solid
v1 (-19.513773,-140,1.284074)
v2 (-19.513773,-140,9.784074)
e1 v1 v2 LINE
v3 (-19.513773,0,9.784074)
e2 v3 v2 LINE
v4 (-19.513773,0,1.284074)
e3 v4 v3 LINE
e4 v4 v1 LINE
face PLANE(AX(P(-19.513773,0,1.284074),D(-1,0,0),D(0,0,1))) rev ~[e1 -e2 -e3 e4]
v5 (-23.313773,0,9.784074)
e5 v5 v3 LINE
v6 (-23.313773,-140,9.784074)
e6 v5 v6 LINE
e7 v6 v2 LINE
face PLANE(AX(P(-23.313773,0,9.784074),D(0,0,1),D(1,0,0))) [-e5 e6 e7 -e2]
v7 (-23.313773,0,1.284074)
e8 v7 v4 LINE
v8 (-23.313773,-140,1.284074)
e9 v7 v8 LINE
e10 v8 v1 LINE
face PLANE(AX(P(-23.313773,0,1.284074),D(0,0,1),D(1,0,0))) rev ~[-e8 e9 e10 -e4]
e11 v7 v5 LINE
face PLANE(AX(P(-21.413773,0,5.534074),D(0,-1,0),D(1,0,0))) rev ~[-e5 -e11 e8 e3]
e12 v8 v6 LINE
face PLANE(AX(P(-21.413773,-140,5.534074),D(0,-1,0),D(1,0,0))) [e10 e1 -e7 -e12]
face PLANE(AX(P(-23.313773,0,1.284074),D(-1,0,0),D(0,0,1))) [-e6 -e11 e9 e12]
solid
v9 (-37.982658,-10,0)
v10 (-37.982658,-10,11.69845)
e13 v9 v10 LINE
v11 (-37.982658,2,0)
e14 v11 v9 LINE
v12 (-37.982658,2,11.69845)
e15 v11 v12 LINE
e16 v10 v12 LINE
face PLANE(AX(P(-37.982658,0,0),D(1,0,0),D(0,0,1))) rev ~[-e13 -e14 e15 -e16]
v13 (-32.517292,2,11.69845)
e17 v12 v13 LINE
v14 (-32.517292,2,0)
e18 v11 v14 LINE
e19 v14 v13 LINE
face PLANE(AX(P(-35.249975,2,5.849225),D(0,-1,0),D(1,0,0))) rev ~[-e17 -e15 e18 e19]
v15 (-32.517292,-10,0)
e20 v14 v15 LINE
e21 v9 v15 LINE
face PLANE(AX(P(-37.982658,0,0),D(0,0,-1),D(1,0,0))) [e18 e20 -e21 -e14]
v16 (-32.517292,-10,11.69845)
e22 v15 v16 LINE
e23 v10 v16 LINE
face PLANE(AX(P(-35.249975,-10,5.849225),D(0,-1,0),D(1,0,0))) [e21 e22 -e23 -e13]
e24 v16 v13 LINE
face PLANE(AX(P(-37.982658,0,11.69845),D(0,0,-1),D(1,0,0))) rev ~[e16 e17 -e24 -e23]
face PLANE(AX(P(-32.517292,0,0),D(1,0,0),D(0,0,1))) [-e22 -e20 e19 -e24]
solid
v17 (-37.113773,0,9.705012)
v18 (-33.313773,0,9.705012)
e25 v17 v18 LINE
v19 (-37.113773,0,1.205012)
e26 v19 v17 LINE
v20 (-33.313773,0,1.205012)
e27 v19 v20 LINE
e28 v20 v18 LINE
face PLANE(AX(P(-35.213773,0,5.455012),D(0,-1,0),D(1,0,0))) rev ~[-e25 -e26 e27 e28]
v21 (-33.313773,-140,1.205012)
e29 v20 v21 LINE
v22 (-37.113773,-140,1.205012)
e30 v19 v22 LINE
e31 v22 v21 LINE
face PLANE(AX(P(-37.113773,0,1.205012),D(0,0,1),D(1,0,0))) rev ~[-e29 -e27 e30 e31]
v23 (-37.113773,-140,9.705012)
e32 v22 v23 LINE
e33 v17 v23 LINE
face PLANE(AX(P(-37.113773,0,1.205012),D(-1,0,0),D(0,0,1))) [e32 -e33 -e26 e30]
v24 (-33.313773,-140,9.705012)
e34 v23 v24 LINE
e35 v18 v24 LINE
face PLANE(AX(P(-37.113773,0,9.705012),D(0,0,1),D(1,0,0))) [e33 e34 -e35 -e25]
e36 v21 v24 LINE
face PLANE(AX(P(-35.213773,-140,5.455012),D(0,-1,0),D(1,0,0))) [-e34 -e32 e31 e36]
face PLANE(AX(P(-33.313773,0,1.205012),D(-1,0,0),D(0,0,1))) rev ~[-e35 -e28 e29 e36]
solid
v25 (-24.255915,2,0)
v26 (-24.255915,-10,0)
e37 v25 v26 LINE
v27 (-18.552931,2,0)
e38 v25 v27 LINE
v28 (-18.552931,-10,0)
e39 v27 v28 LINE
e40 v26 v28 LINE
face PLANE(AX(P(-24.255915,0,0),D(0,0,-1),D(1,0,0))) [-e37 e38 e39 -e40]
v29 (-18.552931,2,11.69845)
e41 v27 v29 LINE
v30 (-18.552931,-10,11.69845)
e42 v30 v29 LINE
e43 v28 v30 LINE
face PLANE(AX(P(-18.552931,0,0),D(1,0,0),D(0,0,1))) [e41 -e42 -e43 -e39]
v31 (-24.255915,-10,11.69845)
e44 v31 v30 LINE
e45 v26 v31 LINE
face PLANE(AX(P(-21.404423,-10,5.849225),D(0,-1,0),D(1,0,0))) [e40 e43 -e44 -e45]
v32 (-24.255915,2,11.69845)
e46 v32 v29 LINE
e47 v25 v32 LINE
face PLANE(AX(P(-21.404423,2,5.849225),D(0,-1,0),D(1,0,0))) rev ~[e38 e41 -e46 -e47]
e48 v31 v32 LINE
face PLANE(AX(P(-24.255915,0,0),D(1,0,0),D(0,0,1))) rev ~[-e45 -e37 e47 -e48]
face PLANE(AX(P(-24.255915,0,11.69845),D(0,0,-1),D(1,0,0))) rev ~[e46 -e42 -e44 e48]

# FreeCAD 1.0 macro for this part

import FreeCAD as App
import Part
import Sketcher
from FreeCAD import Vector
Q = App.Units.Quantity


def add_polygon(sketch, points):
    """Adds a closed chain of lines whose ends are joined by coincident constraints."""
    first, n = sketch.GeometryCount, len(points)
    for a, b in zip(points, points[1:] + points[:1]):
        sketch.addGeometry(Part.LineSegment(App.Vector(*a, 0), App.Vector(*b, 0)), False)
    for i in range(n):
        sketch.addConstraint(Sketcher.Constraint("Coincident", first + i, 2, first + (i + 1) % n, 1))

doc = App.newDocument("Part")
body = doc.addObject("PartDesign::Body", "Body")
body.AllowCompound = True

sketch1 = body.newObject("Sketcher::SketchObject", "Sketch")
sketch1.AttachmentSupport = (doc.getObject("XZ_Plane"), [""])
sketch1.MapMode = "FlatFace"
add_polygon(sketch1, [(-37.1, 9.7), (-37.1, 1.2), (-33.3, 1.2), (-33.3, 9.7)])
add_polygon(sketch1, [(-23.3, 9.8), (-23.3, 1.3), (-19.5, 1.3), (-19.5, 9.8)])
sketch1.addConstraint(Sketcher.Constraint("Vertical", 0))
sketch1.addConstraint(Sketcher.Constraint("Horizontal", 1))
sketch1.addConstraint(Sketcher.Constraint("Vertical", 2))
sketch1.addConstraint(Sketcher.Constraint("Horizontal", 3))
sketch1.addConstraint(Sketcher.Constraint("Vertical", 4))
sketch1.addConstraint(Sketcher.Constraint("Horizontal", 5))
sketch1.addConstraint(Sketcher.Constraint("Vertical", 6))
sketch1.addConstraint(Sketcher.Constraint("Horizontal", 7))
sketch1.addConstraint(Sketcher.Constraint("Equal", 3, 5))
sketch1.addConstraint(Sketcher.Constraint("Equal", 2, 4))
sketch1.addConstraint(Sketcher.Constraint("DistanceX", 1, 1, 1, 2, Q("3.8 mm")))
sketch1.addConstraint(Sketcher.Constraint("DistanceY", 0, 2, 0, 1, Q("8.5 mm")))
sketch1.addConstraint(Sketcher.Constraint("DistanceX", 1, 2, 4, 2, Q("10 mm")))
sketch1.addConstraint(Sketcher.Constraint("DistanceY", 1, 2, 4, 2, Q("0.079062 mm")))
sketch1.addConstraint(Sketcher.Constraint("DistanceX", 0, 2, -1, 1, Q("37.113773 mm")))
sketch1.addConstraint(Sketcher.Constraint("DistanceY", -1, 1, 0, 2, Q("1.205012 mm")))
pad1 = body.newObject("PartDesign::Pad", "Pad")
pad1.Profile = sketch1
pad1.Length = 140
body2 = doc.addObject("PartDesign::Body", "Body001")
body2.AllowCompound = True

sketch2 = body2.newObject("Sketcher::SketchObject", "Sketch001")
sketch2.AttachmentSupport = (doc.getObject("XZ_Plane001"), [""])
sketch2.MapMode = "FlatFace"
add_polygon(sketch2, [(-38, 12), (-38, 0), (-33, 0), (-33, 12)])
add_polygon(sketch2, [(-24, 12), (-24, 0), (-19, 0), (-19, 12)])
sketch2.addConstraint(Sketcher.Constraint("Vertical", 0))
sketch2.addConstraint(Sketcher.Constraint("Horizontal", 1))
sketch2.addConstraint(Sketcher.Constraint("Vertical", 2))
sketch2.addConstraint(Sketcher.Constraint("Horizontal", 3))
sketch2.addConstraint(Sketcher.Constraint("Vertical", 4))
sketch2.addConstraint(Sketcher.Constraint("Horizontal", 5))
sketch2.addConstraint(Sketcher.Constraint("Vertical", 6))
sketch2.addConstraint(Sketcher.Constraint("Horizontal", 7))
sketch2.addConstraint(Sketcher.Constraint("PointOnObject", 0, 2, -1))
sketch2.addConstraint(Sketcher.Constraint("PointOnObject", 4, 2, -1))
sketch2.addConstraint(Sketcher.Constraint("Horizontal", 3, 2, 6, 2))
sketch2.addConstraint(Sketcher.Constraint("DistanceY", 0, 2, 0, 1, Q("11.69845 mm")))
sketch2.addConstraint(Sketcher.Constraint("DistanceX", 1, 1, 1, 2, Q("5.465366 mm")))
sketch2.addConstraint(Sketcher.Constraint("DistanceX", 5, 1, 5, 2, Q("5.702984 mm")))
sketch2.addConstraint(Sketcher.Constraint("DistanceX", 1, 2, -1, 1, Q("32.517292 mm")))
sketch2.addConstraint(Sketcher.Constraint("DistanceX", 5, 2, -1, 1, Q("18.552931 mm")))
pad2 = body2.newObject("PartDesign::Pad", "Pad001")
pad2.Profile = sketch2
pad2.Type = "TwoLengths"
pad2.Length = 10
pad2.Length2 = 2

doc.recompute()
